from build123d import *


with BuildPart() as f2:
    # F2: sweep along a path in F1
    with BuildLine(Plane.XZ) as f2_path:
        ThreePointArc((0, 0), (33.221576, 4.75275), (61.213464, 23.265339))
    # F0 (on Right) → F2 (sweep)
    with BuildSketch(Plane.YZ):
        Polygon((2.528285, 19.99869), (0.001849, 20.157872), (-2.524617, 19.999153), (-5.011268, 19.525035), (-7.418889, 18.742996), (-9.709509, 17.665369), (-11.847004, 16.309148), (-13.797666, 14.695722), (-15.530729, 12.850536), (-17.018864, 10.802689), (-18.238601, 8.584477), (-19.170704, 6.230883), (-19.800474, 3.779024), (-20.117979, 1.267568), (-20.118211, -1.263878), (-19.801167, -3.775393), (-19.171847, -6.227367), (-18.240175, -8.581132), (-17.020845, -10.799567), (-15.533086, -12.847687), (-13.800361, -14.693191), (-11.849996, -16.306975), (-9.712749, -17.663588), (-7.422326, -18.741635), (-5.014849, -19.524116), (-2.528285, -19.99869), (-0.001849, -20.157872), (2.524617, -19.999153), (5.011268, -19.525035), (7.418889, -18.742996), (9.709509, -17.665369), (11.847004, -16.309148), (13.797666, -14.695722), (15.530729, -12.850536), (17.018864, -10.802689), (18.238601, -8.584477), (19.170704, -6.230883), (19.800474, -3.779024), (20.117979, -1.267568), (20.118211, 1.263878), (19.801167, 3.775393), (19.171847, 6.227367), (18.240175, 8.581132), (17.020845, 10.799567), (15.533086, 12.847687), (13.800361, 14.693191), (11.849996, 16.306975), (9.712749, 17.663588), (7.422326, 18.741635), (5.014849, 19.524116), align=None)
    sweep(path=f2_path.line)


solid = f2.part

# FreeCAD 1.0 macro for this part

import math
import FreeCAD as App
import Part
import Sketcher

V = App.Vector

doc = App.newDocument("Part")
body = doc.addObject("PartDesign::Body", "Body")

sketch1 = body.newObject("Sketcher::SketchObject", "Sketch")
sketch1.AttachmentSupport = (doc.getObject("YZ_Plane"), [""])
sketch1.MapMode = "FlatFace"
sketch1.addGeometry([
    Part.LineSegment(V(2.528285, 19.99869, 0), V(0.001849, 20.157872, 0)),
    Part.LineSegment(V(0.001849, 20.157872, 0), V(-2.524617, 19.999153, 0)),
    Part.LineSegment(V(-2.524617, 19.999153, 0), V(-5.011268, 19.525035, 0)),
    Part.LineSegment(V(-5.011268, 19.525035, 0), V(-7.418889, 18.742996, 0)),
    Part.LineSegment(V(-7.418889, 18.742996, 0), V(-9.709509, 17.665369, 0)),
    Part.LineSegment(V(-9.709509, 17.665369, 0), V(-11.847004, 16.309148, 0)),
    Part.LineSegment(V(-11.847004, 16.309148, 0), V(-13.797666, 14.695722, 0)),
    Part.LineSegment(V(-13.797666, 14.695722, 0), V(-15.530729, 12.850536, 0)),
    Part.LineSegment(V(-15.530729, 12.850536, 0), V(-17.018864, 10.802689, 0)),
    Part.LineSegment(V(-17.018864, 10.802689, 0), V(-18.238601, 8.584477, 0)),
    Part.LineSegment(V(-18.238601, 8.584477, 0), V(-19.170704, 6.230883, 0)),
    Part.LineSegment(V(-19.170704, 6.230883, 0), V(-19.800474, 3.779024, 0)),
    Part.LineSegment(V(-19.800474, 3.779024, 0), V(-20.117979, 1.267568, 0)),
    Part.LineSegment(V(-20.117979, 1.267568, 0), V(-20.118211, -1.263878, 0)),
    Part.LineSegment(V(-20.118211, -1.263878, 0), V(-19.801167, -3.775393, 0)),
    Part.LineSegment(V(-19.801167, -3.775393, 0), V(-19.171847, -6.227367, 0)),
    Part.LineSegment(V(-19.171847, -6.227367, 0), V(-18.240175, -8.581132, 0)),
    Part.LineSegment(V(-18.240175, -8.581132, 0), V(-17.020845, -10.799567, 0)),
    Part.LineSegment(V(-17.020845, -10.799567, 0), V(-15.533086, -12.847687, 0)),
    Part.LineSegment(V(-15.533086, -12.847687, 0), V(-13.800361, -14.693191, 0)),
    Part.LineSegment(V(-13.800361, -14.693191, 0), V(-11.849996, -16.306975, 0)),
    Part.LineSegment(V(-11.849996, -16.306975, 0), V(-9.712749, -17.663588, 0)),
    Part.LineSegment(V(-9.712749, -17.663588, 0), V(-7.422326, -18.741635, 0)),
    Part.LineSegment(V(-7.422326, -18.741635, 0), V(-5.014849, -19.524116, 0)),
    Part.LineSegment(V(-5.014849, -19.524116, 0), V(-2.528285, -19.99869, 0)),
    Part.LineSegment(V(-2.528285, -19.99869, 0), V(-0.001849, -20.157872, 0)),
    Part.LineSegment(V(-0.001849, -20.157872, 0), V(2.524617, -19.999153, 0)),
    Part.LineSegment(V(2.524617, -19.999153, 0), V(5.011268, -19.525035, 0)),
    Part.LineSegment(V(5.011268, -19.525035, 0), V(7.418889, -18.742996, 0)),
    Part.LineSegment(V(7.418889, -18.742996, 0), V(9.709509, -17.665369, 0)),
    Part.LineSegment(V(9.709509, -17.665369, 0), V(11.847004, -16.309148, 0)),
    Part.LineSegment(V(11.847004, -16.309148, 0), V(13.797666, -14.695722, 0)),
    Part.LineSegment(V(13.797666, -14.695722, 0), V(15.530729, -12.850536, 0)),
    Part.LineSegment(V(15.530729, -12.850536, 0), V(17.018864, -10.802689, 0)),
    Part.LineSegment(V(17.018864, -10.802689, 0), V(18.238601, -8.584477, 0)),
    Part.LineSegment(V(18.238601, -8.584477, 0), V(19.170704, -6.230883, 0)),
    Part.LineSegment(V(19.170704, -6.230883, 0), V(19.800474, -3.779024, 0)),
    Part.LineSegment(V(19.800474, -3.779024, 0), V(20.117979, -1.267568, 0)),
    Part.LineSegment(V(20.117979, -1.267568, 0), V(20.118211, 1.263878, 0)),
    Part.LineSegment(V(20.118211, 1.263878, 0), V(19.801167, 3.775393, 0)),
    Part.LineSegment(V(19.801167, 3.775393, 0), V(19.171847, 6.227367, 0)),
    Part.LineSegment(V(19.171847, 6.227367, 0), V(18.240175, 8.581132, 0)),
    Part.LineSegment(V(18.240175, 8.581132, 0), V(17.020845, 10.799567, 0)),
    Part.LineSegment(V(17.020845, 10.799567, 0), V(15.533086, 12.847687, 0)),
    Part.LineSegment(V(15.533086, 12.847687, 0), V(13.800361, 14.693191, 0)),
    Part.LineSegment(V(13.800361, 14.693191, 0), V(11.849996, 16.306975, 0)),
    Part.LineSegment(V(11.849996, 16.306975, 0), V(9.712749, 17.663588, 0)),
    Part.LineSegment(V(9.712749, 17.663588, 0), V(7.422326, 18.741635, 0)),
    Part.LineSegment(V(7.422326, 18.741635, 0), V(5.014849, 19.524116, 0)),
    Part.LineSegment(V(5.014849, 19.524116, 0), V(2.528285, 19.99869, 0)),
], False)
sketch1.addConstraint([
    Sketcher.Constraint("Coincident", 0, 2, 1, 1),
    Sketcher.Constraint("Coincident", 1, 2, 2, 1),
    Sketcher.Constraint("Coincident", 2, 2, 3, 1),
    Sketcher.Constraint("Coincident", 3, 2, 4, 1),
    Sketcher.Constraint("Coincident", 4, 2, 5, 1),
    Sketcher.Constraint("Coincident", 5, 2, 6, 1),
    Sketcher.Constraint("Coincident", 6, 2, 7, 1),
    Sketcher.Constraint("Coincident", 7, 2, 8, 1),
    Sketcher.Constraint("Coincident", 8, 2, 9, 1),
    Sketcher.Constraint("Coincident", 9, 2, 10, 1),
    Sketcher.Constraint("Coincident", 10, 2, 11, 1),
    Sketcher.Constraint("Coincident", 11, 2, 12, 1),
    Sketcher.Constraint("Coincident", 12, 2, 13, 1),
    Sketcher.Constraint("Coincident", 13, 2, 14, 1),
    Sketcher.Constraint("Coincident", 14, 2, 15, 1),
    Sketcher.Constraint("Coincident", 15, 2, 16, 1),
    Sketcher.Constraint("Coincident", 16, 2, 17, 1),
    Sketcher.Constraint("Coincident", 17, 2, 18, 1),
    Sketcher.Constraint("Coincident", 18, 2, 19, 1),
    Sketcher.Constraint("Coincident", 19, 2, 20, 1),
    Sketcher.Constraint("Coincident", 20, 2, 21, 1),
    Sketcher.Constraint("Coincident", 21, 2, 22, 1),
    Sketcher.Constraint("Coincident", 22, 2, 23, 1),
    Sketcher.Constraint("Coincident", 23, 2, 24, 1),
    Sketcher.Constraint("Coincident", 24, 2, 25, 1),
    Sketcher.Constraint("Coincident", 25, 2, 26, 1),
    Sketcher.Constraint("Coincident", 26, 2, 27, 1),
    Sketcher.Constraint("Coincident", 27, 2, 28, 1),
    Sketcher.Constraint("Coincident", 28, 2, 29, 1),
    Sketcher.Constraint("Coincident", 29, 2, 30, 1),
    Sketcher.Constraint("Coincident", 30, 2, 31, 1),
    Sketcher.Constraint("Coincident", 31, 2, 32, 1),
    Sketcher.Constraint("Coincident", 32, 2, 33, 1),
    Sketcher.Constraint("Coincident", 33, 2, 34, 1),
    Sketcher.Constraint("Coincident", 34, 2, 35, 1),
    Sketcher.Constraint("Coincident", 35, 2, 36, 1),
    Sketcher.Constraint("Coincident", 36, 2, 37, 1),
    Sketcher.Constraint("Coincident", 37, 2, 38, 1),
    Sketcher.Constraint("Coincident", 38, 2, 39, 1),
    Sketcher.Constraint("Coincident", 39, 2, 40, 1),
    Sketcher.Constraint("Coincident", 40, 2, 41, 1),
    Sketcher.Constraint("Coincident", 41, 2, 42, 1),
    Sketcher.Constraint("Coincident", 42, 2, 43, 1),
    Sketcher.Constraint("Coincident", 43, 2, 44, 1),
    Sketcher.Constraint("Coincident", 44, 2, 45, 1),
    Sketcher.Constraint("Coincident", 45, 2, 46, 1),
    Sketcher.Constraint("Coincident", 46, 2, 47, 1),
    Sketcher.Constraint("Coincident", 47, 2, 48, 1),
    Sketcher.Constraint("Coincident", 48, 2, 49, 1),
    Sketcher.Constraint("Coincident", 49, 2, 0, 1),
    Sketcher.Constraint("DistanceX", 15, 2, 17, 2, 2.151002),
    Sketcher.Constraint("DistanceX", 23, 2, 25, 2, 5.013),
    Sketcher.Constraint("DistanceX", 42, 2, 40, 2, 2.151002),
    Sketcher.Constraint("DistanceX", 0, 2, 48, 2, 5.013),
    Sketcher.Constraint("DistanceX", 9, 2, -1, 1, 18.238601),
    Sketcher.Constraint("DistanceX", -1, 1, 34, 2, 18.238601),
    Sketcher.Constraint("DistanceY", 7, 2, 2, 2, 6.674499),
    Sketcher.Constraint("DistanceX", 8, 2, 6, 2, 3.221198),
    Sketcher.Constraint("DistanceX", 10, 2, 5, 2, 7.3237),
    Sketcher.Constraint("DistanceY", 13, 2, 11, 2, 5.042902),
    Sketcher.Constraint("DistanceY", 16, 2, 12, 2, 9.8487),
    Sketcher.Constraint("DistanceX", 11, 2, 16, 2, 1.560299),
    Sketcher.Constraint("DistanceY", 17, 2, 15, 2, 4.5722),
    Sketcher.Constraint("DistanceY", 19, 2, 14, 2, 10.917798),
    Sketcher.Constraint("DistanceY", 21, 2, 18, 2, 4.815901),
    Sketcher.Constraint("DistanceX", 21, 2, 23, 2, 4.6979),
    Sketcher.Constraint("DistanceY", 24, 2, 21, 2, 2.335102),
    Sketcher.Constraint("DistanceY", 24, 2, 19, 2, 5.305499),
    Sketcher.Constraint("DistanceX", 24, 2, 26, 2, 5.052902),
    Sketcher.Constraint("DistanceY", 27, 2, 22, 2, 0.7834),
    Sketcher.Constraint("DistanceY", 27, 2, 32, 2, 6.674499),
    Sketcher.Constraint("DistanceX", 31, 2, 33, 2, 3.221198),
    Sketcher.Constraint("DistanceX", 30, 2, 35, 2, 7.3237),
    Sketcher.Constraint("DistanceY", 36, 2, 38, 2, 5.042902),
    Sketcher.Constraint("DistanceY", 37, 2, 41, 2, 9.8487),
    Sketcher.Constraint("DistanceX", 41, 2, 36, 2, 1.560299),
    Sketcher.Constraint("DistanceY", 40, 2, 42, 2, 4.5722),
    Sketcher.Constraint("DistanceY", 39, 2, 44, 2, 10.917798),
    Sketcher.Constraint("DistanceY", 43, 2, 46, 2, 4.815901),
    Sketcher.Constraint("DistanceX", 0, 2, 46, 2, 9.7109),
    Sketcher.Constraint("DistanceX", 1, 2, 49, 2, 5.052902),
    Sketcher.Constraint("DistanceX", -1, 1, 0, 2, 0.001849),
    Sketcher.Constraint("DistanceX", 2, 2, -1, 1, 5.011268),
    Sketcher.Constraint("DistanceX", 3, 2, -1, 1, 7.418889),
    Sketcher.Constraint("DistanceX", 4, 2, -1, 1, 9.709509),
    Sketcher.Constraint("DistanceY", -1, 1, 4, 2, 17.665369),
    Sketcher.Constraint("DistanceY", -1, 1, 5, 2, 16.309148),
    Sketcher.Constraint("DistanceX", 7, 2, -1, 1, 15.530729),
    Sketcher.Constraint("DistanceY", -1, 1, 8, 2, 10.802689),
    Sketcher.Constraint("DistanceX", 12, 2, -1, 1, 20.117979),
    Sketcher.Constraint("DistanceX", 13, 2, -1, 1, 20.118211),
    Sketcher.Constraint("DistanceY", 13, 2, -1, 1, 1.263878),
    Sketcher.Constraint("DistanceX", 19, 2, -1, 1, 13.800361),
    Sketcher.Constraint("DistanceY", 19, 2, -1, 1, 14.693191),
    Sketcher.Constraint("DistanceX", 21, 2, -1, 1, 9.712749),
    Sketcher.Constraint("DistanceX", -1, 1, 27, 2, 5.011268),
    Sketcher.Constraint("DistanceX", -1, 1, 28, 2, 7.418889),
    Sketcher.Constraint("DistanceX", -1, 1, 29, 2, 9.709509),
    Sketcher.Constraint("DistanceY", 29, 2, -1, 1, 17.665369),
    Sketcher.Constraint("DistanceY", 30, 2, -1, 1, 16.309148),
    Sketcher.Constraint("DistanceX", -1, 1, 32, 2, 15.530729),
    Sketcher.Constraint("DistanceY", 33, 2, -1, 1, 10.802689),
    Sketcher.Constraint("DistanceX", -1, 1, 37, 2, 20.117979),
    Sketcher.Constraint("DistanceX", -1, 1, 38, 2, 20.118211),
    Sketcher.Constraint("DistanceY", -1, 1, 38, 2, 1.263878),
    Sketcher.Constraint("DistanceX", -1, 1, 44, 2, 13.800361),
    Sketcher.Constraint("DistanceY", -1, 1, 44, 2, 14.693191),
    Sketcher.Constraint("DistanceY", -1, 1, 46, 2, 17.663588),
    Sketcher.Constraint("DistanceY", -1, 1, 49, 2, 19.99869),
    Sketcher.Constraint("DistanceY", 1, 2, 0, 2, 0.158719),
    Sketcher.Constraint("DistanceX", 2, 2, 1, 2, 2.486651),
    Sketcher.Constraint("DistanceY", 2, 2, 1, 2, 0.474118),
    Sketcher.Constraint("DistanceY", 3, 2, 2, 2, 0.782039),
    Sketcher.Constraint("DistanceY", 5, 2, 3, 2, 2.433848),
    Sketcher.Constraint("DistanceX", 6, 2, 5, 2, 1.950662),
    Sketcher.Constraint("DistanceX", 6, 2, 1, 2, 11.273049),
    Sketcher.Constraint("DistanceY", 6, 2, 1, 2, 5.303431),
    Sketcher.Constraint("DistanceY", 9, 2, 7, 2, 4.266059),
    Sketcher.Constraint("DistanceY", 10, 2, 6, 2, 8.464839),
    Sketcher.Constraint("DistanceX", 11, 2, 10, 2, 0.62977),
    Sketcher.Constraint("DistanceY", 12, 2, 9, 2, 7.316909),
    Sketcher.Constraint("DistanceX", 12, 2, 14, 2, 0.316812),
    Sketcher.Constraint("DistanceX", 14, 2, 15, 2, 0.62932),
    Sketcher.Constraint("DistanceY", 15, 2, 13, 2, 4.963489),
    Sketcher.Constraint("DistanceX", 17, 2, 18, 2, 1.487759),
    Sketcher.Constraint("DistanceX", 18, 2, 20, 2, 3.68309),
    Sketcher.Constraint("DistanceY", 20, 2, 18, 2, 3.459288),
    Sketcher.Constraint("DistanceX", 20, 2, 22, 2, 4.42767),
    Sketcher.Constraint("DistanceY", 22, 2, 20, 2, 2.43466),
    Sketcher.Constraint("DistanceY", 23, 2, 22, 2, 0.782481),
    Sketcher.Constraint("DistanceX", 22, 2, 24, 2, 4.894041),
    Sketcher.Constraint("DistanceY", 25, 2, 26, 2, 0.158719),
    Sketcher.Constraint("DistanceY", 26, 2, 22, 2, 1.257518),
    Sketcher.Constraint("DistanceY", 27, 2, 28, 2, 0.782039),
    Sketcher.Constraint("DistanceX", 30, 2, 31, 2, 1.950662),
    Sketcher.Constraint("DistanceX", 26, 2, 31, 2, 11.273049),
    Sketcher.Constraint("DistanceY", 26, 2, 31, 2, 5.303431),
    Sketcher.Constraint("DistanceY", 32, 2, 34, 2, 4.266059),
    Sketcher.Constraint("DistanceY", 31, 2, 35, 2, 8.464839),
    Sketcher.Constraint("DistanceX", 35, 2, 36, 2, 0.62977),
    Sketcher.Constraint("DistanceY", 34, 2, 37, 2, 7.316909),
    Sketcher.Constraint("DistanceX", 39, 2, 37, 2, 0.316812),
    Sketcher.Constraint("DistanceX", 40, 2, 39, 2, 0.62932),
    Sketcher.Constraint("DistanceY", 38, 2, 40, 2, 4.963489),
    Sketcher.Constraint("DistanceX", 43, 2, 42, 2, 1.487759),
    Sketcher.Constraint("DistanceX", 45, 2, 43, 2, 3.68309),
    Sketcher.Constraint("DistanceY", 43, 2, 45, 2, 3.459288),
    Sketcher.Constraint("DistanceX", 47, 2, 45, 2, 4.42767),
    Sketcher.Constraint("DistanceY", 45, 2, 47, 2, 2.43466),
    Sketcher.Constraint("DistanceY", 47, 2, 48, 2, 0.782481),
])

sketch2 = body.newObject("Sketcher::SketchObject", "Sketch001")
sketch2.AttachmentSupport = (doc.getObject("XZ_Plane"), [""])
sketch2.MapMode = "FlatFace"
sketch2.addGeometry(Part.ArcOfCircle(Part.Circle(V(6.038997, 76.27287, 0), V(0, 0, 1), 76.511569), math.radians(-94.527019), math.radians(-43.852492)), False)
sketch2.addConstraint([
    Sketcher.Constraint("Coincident", 0, 1, -1, 1),
    Sketcher.Constraint("Radius", 0, 76.511569),
    Sketcher.Constraint("DistanceY", -1, 1, 0, 3, 76.27287),
    Sketcher.Constraint("DistanceY", -1, 1, 0, 2, 23.265339),
])
doc.recompute()

additivepipe = body.newObject("PartDesign::AdditivePipe", "AdditivePipe")
additivepipe.Profile = sketch1
additivepipe.Spine = (sketch2, ["Edge1"])

doc.recompute()
